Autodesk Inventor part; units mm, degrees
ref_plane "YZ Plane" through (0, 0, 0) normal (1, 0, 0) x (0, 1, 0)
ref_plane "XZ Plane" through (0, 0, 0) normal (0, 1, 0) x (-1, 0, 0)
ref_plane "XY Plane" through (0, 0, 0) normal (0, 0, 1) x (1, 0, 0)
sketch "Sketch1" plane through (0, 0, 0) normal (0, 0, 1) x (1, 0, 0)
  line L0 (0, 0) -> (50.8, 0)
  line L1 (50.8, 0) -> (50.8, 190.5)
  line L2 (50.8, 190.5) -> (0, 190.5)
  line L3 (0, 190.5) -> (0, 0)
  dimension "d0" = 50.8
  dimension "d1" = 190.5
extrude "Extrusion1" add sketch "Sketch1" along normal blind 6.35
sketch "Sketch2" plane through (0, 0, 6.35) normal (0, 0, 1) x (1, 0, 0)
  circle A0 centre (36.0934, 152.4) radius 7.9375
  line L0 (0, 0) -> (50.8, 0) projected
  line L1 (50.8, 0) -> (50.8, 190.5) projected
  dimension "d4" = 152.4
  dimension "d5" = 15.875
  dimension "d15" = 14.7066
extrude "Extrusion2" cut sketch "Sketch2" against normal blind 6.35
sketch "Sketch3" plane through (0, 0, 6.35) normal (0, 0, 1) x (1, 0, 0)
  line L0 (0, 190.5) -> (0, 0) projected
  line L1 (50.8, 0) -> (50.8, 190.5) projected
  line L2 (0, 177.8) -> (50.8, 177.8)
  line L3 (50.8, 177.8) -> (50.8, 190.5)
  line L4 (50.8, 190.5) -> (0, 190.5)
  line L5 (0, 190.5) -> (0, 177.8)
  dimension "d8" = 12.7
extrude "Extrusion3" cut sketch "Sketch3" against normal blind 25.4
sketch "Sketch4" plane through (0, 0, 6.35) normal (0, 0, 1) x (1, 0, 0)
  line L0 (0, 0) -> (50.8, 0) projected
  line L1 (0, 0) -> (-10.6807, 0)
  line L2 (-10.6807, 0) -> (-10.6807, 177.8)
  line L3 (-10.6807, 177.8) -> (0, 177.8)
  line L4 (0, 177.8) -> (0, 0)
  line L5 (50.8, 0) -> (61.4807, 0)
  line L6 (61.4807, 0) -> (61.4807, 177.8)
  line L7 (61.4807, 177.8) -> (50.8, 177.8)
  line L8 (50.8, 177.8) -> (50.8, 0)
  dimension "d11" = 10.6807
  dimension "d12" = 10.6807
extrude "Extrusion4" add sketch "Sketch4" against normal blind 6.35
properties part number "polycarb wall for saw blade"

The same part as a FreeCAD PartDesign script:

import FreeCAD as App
import Part
import Sketcher

V = App.Vector
Q = App.Units.Quantity


def add_polygon(sketch, points):
    """Adds a closed chain of lines whose ends are joined by coincident constraints."""
    first, n = sketch.GeometryCount, len(points)
    for a, b in zip(points, points[1:] + points[:1]):
        sketch.addGeometry(Part.LineSegment(App.Vector(*a, 0), App.Vector(*b, 0)), False)
    for i in range(n):
        sketch.addConstraint(Sketcher.Constraint("Coincident", first + i, 2, first + (i + 1) % n, 1))

doc = App.newDocument("Part")
body = doc.addObject("PartDesign::Body", "Body")

# Sketch on XY plane
sketch1 = body.newObject("Sketcher::SketchObject", "Sketch")
sketch1.AttachmentSupport = (doc.getObject("XY_Plane"), [""])
sketch1.MapMode = "FlatFace"
add_polygon(sketch1, [(0, 190.5), (0, 0), (50.8, 0), (50.8, 190.5)])  # lines 0-3
sketch1.addConstraint([
    Sketcher.Constraint("Vertical", 0),
    Sketcher.Constraint("Horizontal", 1),
    Sketcher.Constraint("Vertical", 2),
    Sketcher.Constraint("Horizontal", 3),
    Sketcher.Constraint("Coincident", 0, 2, -1, 1),
    Sketcher.Constraint("DistanceX", 1, 1, 1, 2, Q("2 in")),
    Sketcher.Constraint("DistanceY", 0, 2, 0, 1, Q("7.5 in")),
])
pad1 = body.newObject("PartDesign::Pad", "Pad")
pad1.Profile = sketch1
pad1.Length = Q("0.25 in")

# Sketch on XY plane
sketch2 = body.newObject("Sketcher::SketchObject", "Sketch001")
sketch2.AttachmentSupport = (doc.getObject("XY_Plane"), [""])
sketch2.MapMode = "FlatFace"
sketch2.AttachmentOffset = App.Placement(V(0, 0, 0.25 * 25.4), App.Rotation())
sketch2.addGeometry(Part.Circle(V(36.0934, 152.4, 0), V(0, 0, 1), 7.9375), False)
sketch2.addConstraint([
    Sketcher.Constraint("Diameter", 0, Q("0.625 in")),
    Sketcher.Constraint("DistanceY", -1, 1, 0, 3, Q("6 in")),
    Sketcher.Constraint("DistanceX", -1, 1, 0, 3, Q("1.421 in")),
])
pocket1 = body.newObject("PartDesign::Pocket", "Pocket")
pocket1.Profile = sketch2
pocket1.Length = Q("0.25 in")

# Sketch on XY plane
sketch3 = body.newObject("Sketcher::SketchObject", "Sketch002")
sketch3.AttachmentSupport = (doc.getObject("XY_Plane"), [""])
sketch3.MapMode = "FlatFace"
sketch3.AttachmentOffset = App.Placement(V(0, 0, 0.25 * 25.4), App.Rotation())
add_polygon(sketch3, [(50.8, 190.5), (0, 190.5), (0, 177.8), (50.8, 177.8)])  # lines 0-3
sketch3.addConstraint([
    Sketcher.Constraint("Horizontal", 0),
    Sketcher.Constraint("Vertical", 1),
    Sketcher.Constraint("Horizontal", 2),
    Sketcher.Constraint("Vertical", 3),
    Sketcher.Constraint("PointOnObject", 0, 2, -2),
    Sketcher.Constraint("DistanceY", 1, 2, 1, 1, Q("0.5 in")),
    Sketcher.Constraint("DistanceX", 0, 2, 0, 1, Q("2 in")),
    Sketcher.Constraint("DistanceY", -1, 1, 1, 2, Q("7 in")),
])
pocket2 = body.newObject("PartDesign::Pocket", "Pocket001")
pocket2.Profile = sketch3
pocket2.Length = Q("1 in")

# Sketch on XY plane
sketch4 = body.newObject("Sketcher::SketchObject", "Sketch003")
sketch4.AttachmentSupport = (doc.getObject("XY_Plane"), [""])
sketch4.MapMode = "FlatFace"
sketch4.AttachmentOffset = App.Placement(V(0, 0, 0.25 * 25.4), App.Rotation())
add_polygon(sketch4, [(50.8, 177.8), (50.8, 0), (61.4807, 0), (61.4807, 177.8)])  # lines 0-3
add_polygon(sketch4, [(-10.6807, 0), (0, 0), (0, 177.8), (-10.6807, 177.8)])  # lines 4-7
sketch4.addConstraint([
    Sketcher.Constraint("Vertical", 0),
    Sketcher.Constraint("Horizontal", 1),
    Sketcher.Constraint("Vertical", 2),
    Sketcher.Constraint("Horizontal", 3),
    Sketcher.Constraint("Horizontal", 4),
    Sketcher.Constraint("Vertical", 5),
    Sketcher.Constraint("Horizontal", 6),
    Sketcher.Constraint("Vertical", 7),
    Sketcher.Constraint("Coincident", 4, 2, -1, 1),
    Sketcher.Constraint("PointOnObject", 0, 2, -1),
    Sketcher.Constraint("Horizontal", 3, 2, 5, 2),
    Sketcher.Constraint("Equal", 3, 4),
    Sketcher.Constraint("DistanceY", 0, 2, 0, 1, Q("7 in")),
    Sketcher.Constraint("DistanceX", 1, 1, 1, 2, Q("0.4205 in")),
    Sketcher.Constraint("DistanceX", -1, 1, 0, 2, Q("2 in")),
])
pad2 = body.newObject("PartDesign::Pad", "Pad001")
pad2.Profile = sketch4
pad2.Length = Q("0.25 in")
pad2.Reversed = True

doc.recompute()
